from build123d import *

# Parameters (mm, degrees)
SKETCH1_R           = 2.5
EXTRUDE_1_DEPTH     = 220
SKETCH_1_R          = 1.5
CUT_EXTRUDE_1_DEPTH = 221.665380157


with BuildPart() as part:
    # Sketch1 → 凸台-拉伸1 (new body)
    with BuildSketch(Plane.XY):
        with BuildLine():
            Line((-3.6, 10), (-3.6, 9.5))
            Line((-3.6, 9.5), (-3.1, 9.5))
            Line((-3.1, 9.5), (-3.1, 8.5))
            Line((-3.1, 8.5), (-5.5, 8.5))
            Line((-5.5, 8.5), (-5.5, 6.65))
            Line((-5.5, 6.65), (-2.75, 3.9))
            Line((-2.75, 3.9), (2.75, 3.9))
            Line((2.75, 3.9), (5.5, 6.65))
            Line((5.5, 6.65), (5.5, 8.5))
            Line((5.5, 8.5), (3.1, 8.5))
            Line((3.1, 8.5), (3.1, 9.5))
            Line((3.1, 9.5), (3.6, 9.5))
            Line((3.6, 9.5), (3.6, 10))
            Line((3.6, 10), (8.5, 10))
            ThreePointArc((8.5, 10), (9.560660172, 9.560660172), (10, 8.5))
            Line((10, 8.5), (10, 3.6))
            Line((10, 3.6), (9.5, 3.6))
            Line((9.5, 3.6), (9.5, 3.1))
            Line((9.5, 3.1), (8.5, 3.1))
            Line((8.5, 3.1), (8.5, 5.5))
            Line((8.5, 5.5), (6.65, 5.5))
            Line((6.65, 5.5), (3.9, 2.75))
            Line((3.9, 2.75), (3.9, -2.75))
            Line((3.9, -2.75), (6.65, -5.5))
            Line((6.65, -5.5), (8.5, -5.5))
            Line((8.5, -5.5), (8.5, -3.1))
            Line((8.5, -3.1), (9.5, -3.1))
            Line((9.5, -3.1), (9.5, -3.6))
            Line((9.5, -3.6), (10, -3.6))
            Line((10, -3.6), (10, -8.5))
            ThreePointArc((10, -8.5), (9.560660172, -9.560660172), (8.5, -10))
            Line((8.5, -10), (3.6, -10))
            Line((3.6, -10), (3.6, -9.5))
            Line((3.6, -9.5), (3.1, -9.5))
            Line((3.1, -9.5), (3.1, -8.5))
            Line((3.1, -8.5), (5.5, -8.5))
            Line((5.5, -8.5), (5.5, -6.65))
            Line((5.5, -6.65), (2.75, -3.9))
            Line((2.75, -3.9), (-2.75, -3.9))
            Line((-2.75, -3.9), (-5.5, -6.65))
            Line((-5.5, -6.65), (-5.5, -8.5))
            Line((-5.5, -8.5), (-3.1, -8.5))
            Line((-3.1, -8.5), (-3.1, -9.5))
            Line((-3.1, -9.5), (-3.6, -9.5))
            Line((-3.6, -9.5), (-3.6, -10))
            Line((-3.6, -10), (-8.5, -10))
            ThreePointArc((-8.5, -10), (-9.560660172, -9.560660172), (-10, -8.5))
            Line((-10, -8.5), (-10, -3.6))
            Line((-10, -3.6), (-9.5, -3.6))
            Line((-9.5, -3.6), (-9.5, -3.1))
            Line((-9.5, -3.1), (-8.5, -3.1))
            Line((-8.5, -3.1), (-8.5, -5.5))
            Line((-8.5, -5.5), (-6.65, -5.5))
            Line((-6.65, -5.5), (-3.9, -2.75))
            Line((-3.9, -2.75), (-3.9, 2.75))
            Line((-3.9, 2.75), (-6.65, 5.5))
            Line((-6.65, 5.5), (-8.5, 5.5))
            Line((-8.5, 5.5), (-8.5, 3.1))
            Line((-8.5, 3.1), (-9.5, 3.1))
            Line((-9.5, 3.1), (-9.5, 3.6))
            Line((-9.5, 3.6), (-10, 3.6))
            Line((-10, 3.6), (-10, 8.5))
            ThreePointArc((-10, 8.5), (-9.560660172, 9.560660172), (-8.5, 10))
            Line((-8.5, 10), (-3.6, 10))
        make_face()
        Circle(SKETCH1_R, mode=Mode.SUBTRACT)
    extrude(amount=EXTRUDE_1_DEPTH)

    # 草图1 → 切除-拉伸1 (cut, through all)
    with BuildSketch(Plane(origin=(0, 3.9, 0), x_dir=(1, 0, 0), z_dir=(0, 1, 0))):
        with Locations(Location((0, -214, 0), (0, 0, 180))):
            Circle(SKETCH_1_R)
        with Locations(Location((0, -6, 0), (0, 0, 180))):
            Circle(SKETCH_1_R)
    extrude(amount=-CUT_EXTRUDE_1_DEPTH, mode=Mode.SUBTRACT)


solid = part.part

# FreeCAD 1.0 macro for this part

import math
import FreeCAD as App
import Part
import Sketcher
from FreeCAD import Vector
Q = App.Units.Quantity

doc = App.newDocument("Part")
params = doc.addObject("Spreadsheet::Sheet", "Params")
for row, (alias, value) in enumerate([
    ("sketch1_diameter", "5 mm"),
    ("sketch1_radius", "1.5 mm"),
    ("sketch1_width", "1 mm"),
    ("sketch1_width2", "4.9 mm"),
    ("sketch1_width3", "2.4 mm"),
    ("pad1_length", "220 mm"),
    ("sketch2_diameter", "3 mm"),
], start=1):
    params.set(f"A{row}", alias)
    params.set(f"B{row}", "=" + value)
    params.setAlias(f"B{row}", alias)

body = doc.addObject("PartDesign::Body", "Body")

# Sketch on XY plane
sketch1 = doc.addObject("Sketcher::SketchObject", "Sketch")
body.addObject(sketch1)
sketch1.AttachmentSupport = (doc.XY_Plane, [""])
sketch1.MapMode = "FlatFace"
sketch1.addGeometry([
    Part.LineSegment(Vector(-3.6, 9.5, 0), Vector(-3.6, 10, 0)),  # 0
    Part.LineSegment(Vector(-3.6, 10, 0), Vector(-8.5, 10, 0)),  # 1
    Part.ArcOfCircle(Part.Circle(Vector(-8.5, 8.5, 0), Vector(0, 0, 1), 1.5), math.radians(90), math.radians(180)),  # 2
    Part.LineSegment(Vector(-10, 8.5, 0), Vector(-10, 3.6, 0)),  # 3
    Part.LineSegment(Vector(-10, 3.6, 0), Vector(-9.5, 3.6, 0)),  # 4
    Part.LineSegment(Vector(-9.5, 3.6, 0), Vector(-9.5, 3.1, 0)),  # 5
    Part.LineSegment(Vector(-9.5, 3.1, 0), Vector(-8.5, 3.1, 0)),  # 6
    Part.LineSegment(Vector(-8.5, 3.1, 0), Vector(-8.5, 5.5, 0)),  # 7
    Part.LineSegment(Vector(-8.5, 5.5, 0), Vector(-6.7, 5.5, 0)),  # 8
    Part.LineSegment(Vector(-6.7, 5.5, 0), Vector(-3.9, 2.8, 0)),  # 9
    Part.LineSegment(Vector(-3.9, 2.8, 0), Vector(-3.9, -2.8, 0)),  # 10
    Part.LineSegment(Vector(-3.9, -2.8, 0), Vector(-6.7, -5.5, 0)),  # 11
    Part.LineSegment(Vector(-6.7, -5.5, 0), Vector(-8.5, -5.5, 0)),  # 12
    Part.LineSegment(Vector(-8.5, -5.5, 0), Vector(-8.5, -3.1, 0)),  # 13
    Part.LineSegment(Vector(-8.5, -3.1, 0), Vector(-9.5, -3.1, 0)),  # 14
    Part.LineSegment(Vector(-9.5, -3.1, 0), Vector(-9.5, -3.6, 0)),  # 15
    Part.LineSegment(Vector(-9.5, -3.6, 0), Vector(-10, -3.6, 0)),  # 16
    Part.LineSegment(Vector(-10, -3.6, 0), Vector(-10, -8.5, 0)),  # 17
    Part.ArcOfCircle(Part.Circle(Vector(-8.5, -8.5, 0), Vector(0, 0, 1), 1.5), math.radians(180), math.radians(270)),  # 18
    Part.LineSegment(Vector(-8.5, -10, 0), Vector(-3.6, -10, 0)),  # 19
    Part.LineSegment(Vector(-3.6, -10, 0), Vector(-3.6, -9.5, 0)),  # 20
    Part.LineSegment(Vector(-3.6, -9.5, 0), Vector(-3.1, -9.5, 0)),  # 21
    Part.LineSegment(Vector(-3.1, -9.5, 0), Vector(-3.1, -8.5, 0)),  # 22
    Part.LineSegment(Vector(-3.1, -8.5, 0), Vector(-5.5, -8.5, 0)),  # 23
    Part.LineSegment(Vector(-5.5, -8.5, 0), Vector(-5.5, -6.7, 0)),  # 24
    Part.LineSegment(Vector(-5.5, -6.7, 0), Vector(-2.8, -3.9, 0)),  # 25
    Part.LineSegment(Vector(-2.8, -3.9, 0), Vector(2.8, -3.9, 0)),  # 26
    Part.LineSegment(Vector(2.8, -3.9, 0), Vector(5.5, -6.7, 0)),  # 27
    Part.LineSegment(Vector(5.5, -6.7, 0), Vector(5.5, -8.5, 0)),  # 28
    Part.LineSegment(Vector(5.5, -8.5, 0), Vector(3.1, -8.5, 0)),  # 29
    Part.LineSegment(Vector(3.1, -8.5, 0), Vector(3.1, -9.5, 0)),  # 30
    Part.LineSegment(Vector(3.1, -9.5, 0), Vector(3.6, -9.5, 0)),  # 31
    Part.LineSegment(Vector(3.6, -9.5, 0), Vector(3.6, -10, 0)),  # 32
    Part.LineSegment(Vector(3.6, -10, 0), Vector(8.5, -10, 0)),  # 33
    Part.ArcOfCircle(Part.Circle(Vector(8.5, -8.5, 0), Vector(0, 0, 1), 1.5), math.radians(-90), math.radians(0)),  # 34
    Part.LineSegment(Vector(10, -8.5, 0), Vector(10, -3.6, 0)),  # 35
    Part.LineSegment(Vector(10, -3.6, 0), Vector(9.5, -3.6, 0)),  # 36
    Part.LineSegment(Vector(9.5, -3.6, 0), Vector(9.5, -3.1, 0)),  # 37
    Part.LineSegment(Vector(9.5, -3.1, 0), Vector(8.5, -3.1, 0)),  # 38
    Part.LineSegment(Vector(8.5, -3.1, 0), Vector(8.5, -5.5, 0)),  # 39
    Part.LineSegment(Vector(8.5, -5.5, 0), Vector(6.7, -5.5, 0)),  # 40
    Part.LineSegment(Vector(6.7, -5.5, 0), Vector(3.9, -2.8, 0)),  # 41
    Part.LineSegment(Vector(3.9, -2.8, 0), Vector(3.9, 2.8, 0)),  # 42
    Part.LineSegment(Vector(3.9, 2.8, 0), Vector(6.7, 5.5, 0)),  # 43
    Part.LineSegment(Vector(6.7, 5.5, 0), Vector(8.5, 5.5, 0)),  # 44
    Part.LineSegment(Vector(8.5, 5.5, 0), Vector(8.5, 3.1, 0)),  # 45
    Part.LineSegment(Vector(8.5, 3.1, 0), Vector(9.5, 3.1, 0)),  # 46
    Part.LineSegment(Vector(9.5, 3.1, 0), Vector(9.5, 3.6, 0)),  # 47
    Part.LineSegment(Vector(9.5, 3.6, 0), Vector(10, 3.6, 0)),  # 48
    Part.LineSegment(Vector(10, 3.6, 0), Vector(10, 8.5, 0)),  # 49
    Part.ArcOfCircle(Part.Circle(Vector(8.5, 8.5, 0), Vector(0, 0, 1), 1.5), math.radians(0), math.radians(90)),  # 50
    Part.LineSegment(Vector(8.5, 10, 0), Vector(3.6, 10, 0)),  # 51
    Part.LineSegment(Vector(3.6, 10, 0), Vector(3.6, 9.5, 0)),  # 52
    Part.LineSegment(Vector(3.6, 9.5, 0), Vector(3.1, 9.5, 0)),  # 53
    Part.LineSegment(Vector(3.1, 9.5, 0), Vector(3.1, 8.5, 0)),  # 54
    Part.LineSegment(Vector(3.1, 8.5, 0), Vector(5.5, 8.5, 0)),  # 55
    Part.LineSegment(Vector(5.5, 8.5, 0), Vector(5.5, 6.7, 0)),  # 56
    Part.LineSegment(Vector(5.5, 6.7, 0), Vector(2.8, 3.9, 0)),  # 57
    Part.LineSegment(Vector(2.8, 3.9, 0), Vector(-2.8, 3.9, 0)),  # 58
    Part.LineSegment(Vector(-2.8, 3.9, 0), Vector(-5.5, 6.7, 0)),  # 59
    Part.LineSegment(Vector(-5.5, 6.7, 0), Vector(-5.5, 8.5, 0)),  # 60
    Part.LineSegment(Vector(-5.5, 8.5, 0), Vector(-3.1, 8.5, 0)),  # 61
    Part.LineSegment(Vector(-3.1, 8.5, 0), Vector(-3.1, 9.5, 0)),  # 62
    Part.LineSegment(Vector(-3.1, 9.5, 0), Vector(-3.6, 9.5, 0)),  # 63
    Part.Circle(Vector(0, 0, 0), Vector(0, 0, 1), 2.5),  # 64
], False)
sketch1.addConstraint([
    Sketcher.Constraint("Coincident", 0, 2, 1, 1),
    Sketcher.Constraint("Tangent", 1, 2, 2, 1),
    Sketcher.Constraint("Tangent", 2, 2, 3, 1),
    Sketcher.Constraint("Coincident", 3, 2, 4, 1),
    Sketcher.Constraint("Coincident", 4, 2, 5, 1),
    Sketcher.Constraint("Coincident", 5, 2, 6, 1),
    Sketcher.Constraint("Coincident", 6, 2, 7, 1),
    Sketcher.Constraint("Coincident", 7, 2, 8, 1),
    Sketcher.Constraint("Coincident", 8, 2, 9, 1),
    Sketcher.Constraint("Coincident", 9, 2, 10, 1),
    Sketcher.Constraint("Coincident", 10, 2, 11, 1),
    Sketcher.Constraint("Coincident", 11, 2, 12, 1),
    Sketcher.Constraint("Coincident", 12, 2, 13, 1),
    Sketcher.Constraint("Coincident", 13, 2, 14, 1),
    Sketcher.Constraint("Coincident", 14, 2, 15, 1),
    Sketcher.Constraint("Coincident", 15, 2, 16, 1),
    Sketcher.Constraint("Coincident", 16, 2, 17, 1),
    Sketcher.Constraint("Tangent", 17, 2, 18, 1),
    Sketcher.Constraint("Tangent", 18, 2, 19, 1),
    Sketcher.Constraint("Coincident", 19, 2, 20, 1),
    Sketcher.Constraint("Coincident", 20, 2, 21, 1),
    Sketcher.Constraint("Coincident", 21, 2, 22, 1),
    Sketcher.Constraint("Coincident", 22, 2, 23, 1),
    Sketcher.Constraint("Coincident", 23, 2, 24, 1),
    Sketcher.Constraint("Coincident", 24, 2, 25, 1),
    Sketcher.Constraint("Coincident", 25, 2, 26, 1),
    Sketcher.Constraint("Coincident", 26, 2, 27, 1),
    Sketcher.Constraint("Coincident", 27, 2, 28, 1),
    Sketcher.Constraint("Coincident", 28, 2, 29, 1),
    Sketcher.Constraint("Coincident", 29, 2, 30, 1),
    Sketcher.Constraint("Coincident", 30, 2, 31, 1),
    Sketcher.Constraint("Coincident", 31, 2, 32, 1),
    Sketcher.Constraint("Coincident", 32, 2, 33, 1),
    Sketcher.Constraint("Tangent", 33, 2, 34, 1),
    Sketcher.Constraint("Tangent", 34, 2, 35, 1),
    Sketcher.Constraint("Coincident", 35, 2, 36, 1),
    Sketcher.Constraint("Coincident", 36, 2, 37, 1),
    Sketcher.Constraint("Coincident", 37, 2, 38, 1),
    Sketcher.Constraint("Coincident", 38, 2, 39, 1),
    Sketcher.Constraint("Coincident", 39, 2, 40, 1),
    Sketcher.Constraint("Coincident", 40, 2, 41, 1),
    Sketcher.Constraint("Coincident", 41, 2, 42, 1),
    Sketcher.Constraint("Coincident", 42, 2, 43, 1),
    Sketcher.Constraint("Coincident", 43, 2, 44, 1),
    Sketcher.Constraint("Coincident", 44, 2, 45, 1),
    Sketcher.Constraint("Coincident", 45, 2, 46, 1),
    Sketcher.Constraint("Coincident", 46, 2, 47, 1),
    Sketcher.Constraint("Coincident", 47, 2, 48, 1),
    Sketcher.Constraint("Coincident", 48, 2, 49, 1),
    Sketcher.Constraint("Tangent", 49, 2, 50, 1),
    Sketcher.Constraint("Tangent", 50, 2, 51, 1),
    Sketcher.Constraint("Coincident", 51, 2, 52, 1),
    Sketcher.Constraint("Coincident", 52, 2, 53, 1),
    Sketcher.Constraint("Coincident", 53, 2, 54, 1),
    Sketcher.Constraint("Coincident", 54, 2, 55, 1),
    Sketcher.Constraint("Coincident", 55, 2, 56, 1),
    Sketcher.Constraint("Coincident", 56, 2, 57, 1),
    Sketcher.Constraint("Coincident", 57, 2, 58, 1),
    Sketcher.Constraint("Coincident", 58, 2, 59, 1),
    Sketcher.Constraint("Coincident", 59, 2, 60, 1),
    Sketcher.Constraint("Coincident", 60, 2, 61, 1),
    Sketcher.Constraint("Coincident", 61, 2, 62, 1),
    Sketcher.Constraint("Coincident", 62, 2, 63, 1),
    Sketcher.Constraint("Coincident", 63, 2, 0, 1),
    Sketcher.Constraint("Vertical", 0),
    Sketcher.Constraint("Horizontal", 1),
    Sketcher.Constraint("Vertical", 3),
    Sketcher.Constraint("Horizontal", 4),
    Sketcher.Constraint("Vertical", 5),
    Sketcher.Constraint("Horizontal", 6),
    Sketcher.Constraint("Vertical", 7),
    Sketcher.Constraint("Horizontal", 8),
    Sketcher.Constraint("Vertical", 10),
    Sketcher.Constraint("Horizontal", 12),
    Sketcher.Constraint("Vertical", 13),
    Sketcher.Constraint("Horizontal", 14),
    Sketcher.Constraint("Vertical", 15),
    Sketcher.Constraint("Horizontal", 16),
    Sketcher.Constraint("Vertical", 17),
    Sketcher.Constraint("Horizontal", 19),
    Sketcher.Constraint("Vertical", 20),
    Sketcher.Constraint("Horizontal", 21),
    Sketcher.Constraint("Vertical", 22),
    Sketcher.Constraint("Horizontal", 23),
    Sketcher.Constraint("Vertical", 24),
    Sketcher.Constraint("Horizontal", 26),
    Sketcher.Constraint("Vertical", 28),
    Sketcher.Constraint("Horizontal", 29),
    Sketcher.Constraint("Vertical", 30),
    Sketcher.Constraint("Horizontal", 31),
    Sketcher.Constraint("Vertical", 32),
    Sketcher.Constraint("Horizontal", 33),
    Sketcher.Constraint("Vertical", 35),
    Sketcher.Constraint("Horizontal", 36),
    Sketcher.Constraint("Vertical", 37),
    Sketcher.Constraint("Horizontal", 38),
    Sketcher.Constraint("Vertical", 39),
    Sketcher.Constraint("Horizontal", 40),
    Sketcher.Constraint("Vertical", 42),
    Sketcher.Constraint("Horizontal", 44),
    Sketcher.Constraint("Vertical", 45),
    Sketcher.Constraint("Horizontal", 46),
    Sketcher.Constraint("Vertical", 47),
    Sketcher.Constraint("Horizontal", 48),
    Sketcher.Constraint("Vertical", 49),
    Sketcher.Constraint("Horizontal", 51),
    Sketcher.Constraint("Vertical", 52),
    Sketcher.Constraint("Horizontal", 53),
    Sketcher.Constraint("Vertical", 54),
    Sketcher.Constraint("Horizontal", 55),
    Sketcher.Constraint("Vertical", 56),
    Sketcher.Constraint("Horizontal", 58),
    Sketcher.Constraint("Vertical", 60),
    Sketcher.Constraint("Horizontal", 61),
    Sketcher.Constraint("Vertical", 62),
    Sketcher.Constraint("Horizontal", 63),
    Sketcher.Constraint("Coincident", 64, 3, -1, 1),
    Sketcher.Constraint("Equal", 2, 18),
    Sketcher.Constraint("Equal", 18, 34),
    Sketcher.Constraint("Equal", 34, 50),
    Sketcher.Constraint("Symmetric", 2, 3, 34, 3, -1, 1),
    Sketcher.Constraint("Symmetric", 18, 3, 50, 3, -1, 1),
    Sketcher.Constraint("Symmetric", 4, 2, 36, 2, -1, 1),
    Sketcher.Constraint("Symmetric", 6, 2, 38, 2, -1, 1),
    Sketcher.Constraint("Symmetric", 8, 2, 40, 2, -1, 1),
    Sketcher.Constraint("Symmetric", 9, 2, 41, 2, -1, 1),
    Sketcher.Constraint("Symmetric", 11, 2, 43, 2, -1, 1),
    Sketcher.Constraint("Symmetric", 13, 2, 45, 2, -1, 1),
    Sketcher.Constraint("Symmetric", 15, 2, 47, 2, -1, 1),
    Sketcher.Constraint("Symmetric", 20, 2, 52, 2, -1, 1),
    Sketcher.Constraint("Symmetric", 22, 2, 54, 2, -1, 1),
    Sketcher.Constraint("Symmetric", 24, 2, 56, 2, -1, 1),
    Sketcher.Constraint("Symmetric", 25, 2, 57, 2, -1, 1),
    Sketcher.Constraint("Symmetric", 27, 2, 59, 2, -1, 1),
    Sketcher.Constraint("Symmetric", 29, 2, 61, 2, -1, 1),
    Sketcher.Constraint("Symmetric", 31, 2, 63, 2, -1, 1),
    Sketcher.Constraint("Symmetric", 18, 3, 34, 3, -2),
    Sketcher.Constraint("Symmetric", 24, 2, 27, 2, -2),
    Sketcher.Constraint("Symmetric", 22, 2, 29, 2, -2),
    Sketcher.Constraint("Symmetric", 20, 2, 31, 2, -2),
    Sketcher.Constraint("Symmetric", 15, 2, 36, 2, -2),
    Sketcher.Constraint("Symmetric", 13, 2, 38, 2, -2),
    Sketcher.Constraint("Symmetric", 11, 2, 40, 2, -2),
    Sketcher.Constraint("Perpendicular", 9, 11),
    Sketcher.Constraint("Parallel", 11, 25),
    Sketcher.Constraint("Perpendicular", 25, 27),
    Sketcher.Constraint("Perpendicular", 41, 43),
    Sketcher.Constraint("Perpendicular", 57, 59),
    Sketcher.Constraint("Horizontal", 17, 2, 22, 2),
    Sketcher.Constraint("Horizontal", 10, 2, 41, 2),
    Sketcher.Constraint("Vertical", 1, 2, 6, 2),
    Sketcher.Constraint("Equal", 16, 21),
    Sketcher.Constraint("Equal", 63, 0),
    Sketcher.Constraint("Equal", 51, 3),
    Sketcher.Constraint("Equal", 0, 5),
    Sketcher.Constraint("Equal", 61, 7),
    Sketcher.Constraint("Equal", 58, 10),
    Sketcher.Constraint("Equal", 44, 24),
    Sketcher.Constraint("Equal", 11, 25),
    Sketcher.Constraint("Diameter", 64, Q("5 mm")),
    Sketcher.Constraint("Radius", 2, Q("1.5 mm")),
    Sketcher.Constraint("DistanceX", 6, 1, 6, 2, Q("1 mm")),
    Sketcher.Constraint("DistanceX", 1, 2, 1, 1, Q("4.9 mm")),
    Sketcher.Constraint("DistanceX", 23, 2, 23, 1, Q("2.4 mm")),
    Sketcher.Constraint("DistanceX", 26, 1, 26, 2, Q("5.5 mm")),
    Sketcher.Constraint("DistanceY", -1, 1, 0, 2, Q("10 mm")),
    Sketcher.Constraint("DistanceX", 8, 1, 8, 2, Q("1.85 mm")),
])
sketch1.setExpression("Constraints[159]", "Params.sketch1_diameter")
sketch1.setExpression("Constraints[160]", "Params.sketch1_radius")
sketch1.setExpression("Constraints[161]", "Params.sketch1_width")
sketch1.setExpression("Constraints[162]", "Params.sketch1_width2")
sketch1.setExpression("Constraints[163]", "Params.sketch1_width3")
pad1 = doc.addObject("PartDesign::Pad", "Pad")
body.addObject(pad1)
pad1.Profile = sketch1
pad1.setExpression("Length", "Params.pad1_length")

# Sketch on XZ plane
sketch2 = doc.addObject("Sketcher::SketchObject", "Sketch001")
body.addObject(sketch2)
sketch2.AttachmentSupport = (doc.XZ_Plane, [""])
sketch2.MapMode = "FlatFace"
sketch2.AttachmentOffset = App.Placement(Vector(0, 0, -3.9), App.Rotation())
sketch2.addGeometry([
    Part.Circle(Vector(0, 214, 0), Vector(0, 0, 1), 1.5),
    Part.Circle(Vector(0, 6, 0), Vector(0, 0, 1), 1.5),
], False)
sketch2.addConstraint([
    Sketcher.Constraint("Equal", 0, 1),
    Sketcher.Constraint("PointOnObject", 0, 3, -2),
    Sketcher.Constraint("PointOnObject", 1, 3, -2),
    Sketcher.Constraint("Diameter", 0, Q("3 mm")),
    Sketcher.Constraint("DistanceY", -1, 1, 0, 3, Q("214 mm")),
    Sketcher.Constraint("DistanceY", -1, 1, 1, 3, Q("6 mm")),
])
sketch2.setExpression("Constraints[3]", "Params.sketch2_diameter")
pocket1 = doc.addObject("PartDesign::Pocket", "Pocket")
body.addObject(pocket1)
pocket1.Profile = sketch2
pocket1.Type = "ThroughAll"
pocket1.Reversed = True

doc.recompute()
